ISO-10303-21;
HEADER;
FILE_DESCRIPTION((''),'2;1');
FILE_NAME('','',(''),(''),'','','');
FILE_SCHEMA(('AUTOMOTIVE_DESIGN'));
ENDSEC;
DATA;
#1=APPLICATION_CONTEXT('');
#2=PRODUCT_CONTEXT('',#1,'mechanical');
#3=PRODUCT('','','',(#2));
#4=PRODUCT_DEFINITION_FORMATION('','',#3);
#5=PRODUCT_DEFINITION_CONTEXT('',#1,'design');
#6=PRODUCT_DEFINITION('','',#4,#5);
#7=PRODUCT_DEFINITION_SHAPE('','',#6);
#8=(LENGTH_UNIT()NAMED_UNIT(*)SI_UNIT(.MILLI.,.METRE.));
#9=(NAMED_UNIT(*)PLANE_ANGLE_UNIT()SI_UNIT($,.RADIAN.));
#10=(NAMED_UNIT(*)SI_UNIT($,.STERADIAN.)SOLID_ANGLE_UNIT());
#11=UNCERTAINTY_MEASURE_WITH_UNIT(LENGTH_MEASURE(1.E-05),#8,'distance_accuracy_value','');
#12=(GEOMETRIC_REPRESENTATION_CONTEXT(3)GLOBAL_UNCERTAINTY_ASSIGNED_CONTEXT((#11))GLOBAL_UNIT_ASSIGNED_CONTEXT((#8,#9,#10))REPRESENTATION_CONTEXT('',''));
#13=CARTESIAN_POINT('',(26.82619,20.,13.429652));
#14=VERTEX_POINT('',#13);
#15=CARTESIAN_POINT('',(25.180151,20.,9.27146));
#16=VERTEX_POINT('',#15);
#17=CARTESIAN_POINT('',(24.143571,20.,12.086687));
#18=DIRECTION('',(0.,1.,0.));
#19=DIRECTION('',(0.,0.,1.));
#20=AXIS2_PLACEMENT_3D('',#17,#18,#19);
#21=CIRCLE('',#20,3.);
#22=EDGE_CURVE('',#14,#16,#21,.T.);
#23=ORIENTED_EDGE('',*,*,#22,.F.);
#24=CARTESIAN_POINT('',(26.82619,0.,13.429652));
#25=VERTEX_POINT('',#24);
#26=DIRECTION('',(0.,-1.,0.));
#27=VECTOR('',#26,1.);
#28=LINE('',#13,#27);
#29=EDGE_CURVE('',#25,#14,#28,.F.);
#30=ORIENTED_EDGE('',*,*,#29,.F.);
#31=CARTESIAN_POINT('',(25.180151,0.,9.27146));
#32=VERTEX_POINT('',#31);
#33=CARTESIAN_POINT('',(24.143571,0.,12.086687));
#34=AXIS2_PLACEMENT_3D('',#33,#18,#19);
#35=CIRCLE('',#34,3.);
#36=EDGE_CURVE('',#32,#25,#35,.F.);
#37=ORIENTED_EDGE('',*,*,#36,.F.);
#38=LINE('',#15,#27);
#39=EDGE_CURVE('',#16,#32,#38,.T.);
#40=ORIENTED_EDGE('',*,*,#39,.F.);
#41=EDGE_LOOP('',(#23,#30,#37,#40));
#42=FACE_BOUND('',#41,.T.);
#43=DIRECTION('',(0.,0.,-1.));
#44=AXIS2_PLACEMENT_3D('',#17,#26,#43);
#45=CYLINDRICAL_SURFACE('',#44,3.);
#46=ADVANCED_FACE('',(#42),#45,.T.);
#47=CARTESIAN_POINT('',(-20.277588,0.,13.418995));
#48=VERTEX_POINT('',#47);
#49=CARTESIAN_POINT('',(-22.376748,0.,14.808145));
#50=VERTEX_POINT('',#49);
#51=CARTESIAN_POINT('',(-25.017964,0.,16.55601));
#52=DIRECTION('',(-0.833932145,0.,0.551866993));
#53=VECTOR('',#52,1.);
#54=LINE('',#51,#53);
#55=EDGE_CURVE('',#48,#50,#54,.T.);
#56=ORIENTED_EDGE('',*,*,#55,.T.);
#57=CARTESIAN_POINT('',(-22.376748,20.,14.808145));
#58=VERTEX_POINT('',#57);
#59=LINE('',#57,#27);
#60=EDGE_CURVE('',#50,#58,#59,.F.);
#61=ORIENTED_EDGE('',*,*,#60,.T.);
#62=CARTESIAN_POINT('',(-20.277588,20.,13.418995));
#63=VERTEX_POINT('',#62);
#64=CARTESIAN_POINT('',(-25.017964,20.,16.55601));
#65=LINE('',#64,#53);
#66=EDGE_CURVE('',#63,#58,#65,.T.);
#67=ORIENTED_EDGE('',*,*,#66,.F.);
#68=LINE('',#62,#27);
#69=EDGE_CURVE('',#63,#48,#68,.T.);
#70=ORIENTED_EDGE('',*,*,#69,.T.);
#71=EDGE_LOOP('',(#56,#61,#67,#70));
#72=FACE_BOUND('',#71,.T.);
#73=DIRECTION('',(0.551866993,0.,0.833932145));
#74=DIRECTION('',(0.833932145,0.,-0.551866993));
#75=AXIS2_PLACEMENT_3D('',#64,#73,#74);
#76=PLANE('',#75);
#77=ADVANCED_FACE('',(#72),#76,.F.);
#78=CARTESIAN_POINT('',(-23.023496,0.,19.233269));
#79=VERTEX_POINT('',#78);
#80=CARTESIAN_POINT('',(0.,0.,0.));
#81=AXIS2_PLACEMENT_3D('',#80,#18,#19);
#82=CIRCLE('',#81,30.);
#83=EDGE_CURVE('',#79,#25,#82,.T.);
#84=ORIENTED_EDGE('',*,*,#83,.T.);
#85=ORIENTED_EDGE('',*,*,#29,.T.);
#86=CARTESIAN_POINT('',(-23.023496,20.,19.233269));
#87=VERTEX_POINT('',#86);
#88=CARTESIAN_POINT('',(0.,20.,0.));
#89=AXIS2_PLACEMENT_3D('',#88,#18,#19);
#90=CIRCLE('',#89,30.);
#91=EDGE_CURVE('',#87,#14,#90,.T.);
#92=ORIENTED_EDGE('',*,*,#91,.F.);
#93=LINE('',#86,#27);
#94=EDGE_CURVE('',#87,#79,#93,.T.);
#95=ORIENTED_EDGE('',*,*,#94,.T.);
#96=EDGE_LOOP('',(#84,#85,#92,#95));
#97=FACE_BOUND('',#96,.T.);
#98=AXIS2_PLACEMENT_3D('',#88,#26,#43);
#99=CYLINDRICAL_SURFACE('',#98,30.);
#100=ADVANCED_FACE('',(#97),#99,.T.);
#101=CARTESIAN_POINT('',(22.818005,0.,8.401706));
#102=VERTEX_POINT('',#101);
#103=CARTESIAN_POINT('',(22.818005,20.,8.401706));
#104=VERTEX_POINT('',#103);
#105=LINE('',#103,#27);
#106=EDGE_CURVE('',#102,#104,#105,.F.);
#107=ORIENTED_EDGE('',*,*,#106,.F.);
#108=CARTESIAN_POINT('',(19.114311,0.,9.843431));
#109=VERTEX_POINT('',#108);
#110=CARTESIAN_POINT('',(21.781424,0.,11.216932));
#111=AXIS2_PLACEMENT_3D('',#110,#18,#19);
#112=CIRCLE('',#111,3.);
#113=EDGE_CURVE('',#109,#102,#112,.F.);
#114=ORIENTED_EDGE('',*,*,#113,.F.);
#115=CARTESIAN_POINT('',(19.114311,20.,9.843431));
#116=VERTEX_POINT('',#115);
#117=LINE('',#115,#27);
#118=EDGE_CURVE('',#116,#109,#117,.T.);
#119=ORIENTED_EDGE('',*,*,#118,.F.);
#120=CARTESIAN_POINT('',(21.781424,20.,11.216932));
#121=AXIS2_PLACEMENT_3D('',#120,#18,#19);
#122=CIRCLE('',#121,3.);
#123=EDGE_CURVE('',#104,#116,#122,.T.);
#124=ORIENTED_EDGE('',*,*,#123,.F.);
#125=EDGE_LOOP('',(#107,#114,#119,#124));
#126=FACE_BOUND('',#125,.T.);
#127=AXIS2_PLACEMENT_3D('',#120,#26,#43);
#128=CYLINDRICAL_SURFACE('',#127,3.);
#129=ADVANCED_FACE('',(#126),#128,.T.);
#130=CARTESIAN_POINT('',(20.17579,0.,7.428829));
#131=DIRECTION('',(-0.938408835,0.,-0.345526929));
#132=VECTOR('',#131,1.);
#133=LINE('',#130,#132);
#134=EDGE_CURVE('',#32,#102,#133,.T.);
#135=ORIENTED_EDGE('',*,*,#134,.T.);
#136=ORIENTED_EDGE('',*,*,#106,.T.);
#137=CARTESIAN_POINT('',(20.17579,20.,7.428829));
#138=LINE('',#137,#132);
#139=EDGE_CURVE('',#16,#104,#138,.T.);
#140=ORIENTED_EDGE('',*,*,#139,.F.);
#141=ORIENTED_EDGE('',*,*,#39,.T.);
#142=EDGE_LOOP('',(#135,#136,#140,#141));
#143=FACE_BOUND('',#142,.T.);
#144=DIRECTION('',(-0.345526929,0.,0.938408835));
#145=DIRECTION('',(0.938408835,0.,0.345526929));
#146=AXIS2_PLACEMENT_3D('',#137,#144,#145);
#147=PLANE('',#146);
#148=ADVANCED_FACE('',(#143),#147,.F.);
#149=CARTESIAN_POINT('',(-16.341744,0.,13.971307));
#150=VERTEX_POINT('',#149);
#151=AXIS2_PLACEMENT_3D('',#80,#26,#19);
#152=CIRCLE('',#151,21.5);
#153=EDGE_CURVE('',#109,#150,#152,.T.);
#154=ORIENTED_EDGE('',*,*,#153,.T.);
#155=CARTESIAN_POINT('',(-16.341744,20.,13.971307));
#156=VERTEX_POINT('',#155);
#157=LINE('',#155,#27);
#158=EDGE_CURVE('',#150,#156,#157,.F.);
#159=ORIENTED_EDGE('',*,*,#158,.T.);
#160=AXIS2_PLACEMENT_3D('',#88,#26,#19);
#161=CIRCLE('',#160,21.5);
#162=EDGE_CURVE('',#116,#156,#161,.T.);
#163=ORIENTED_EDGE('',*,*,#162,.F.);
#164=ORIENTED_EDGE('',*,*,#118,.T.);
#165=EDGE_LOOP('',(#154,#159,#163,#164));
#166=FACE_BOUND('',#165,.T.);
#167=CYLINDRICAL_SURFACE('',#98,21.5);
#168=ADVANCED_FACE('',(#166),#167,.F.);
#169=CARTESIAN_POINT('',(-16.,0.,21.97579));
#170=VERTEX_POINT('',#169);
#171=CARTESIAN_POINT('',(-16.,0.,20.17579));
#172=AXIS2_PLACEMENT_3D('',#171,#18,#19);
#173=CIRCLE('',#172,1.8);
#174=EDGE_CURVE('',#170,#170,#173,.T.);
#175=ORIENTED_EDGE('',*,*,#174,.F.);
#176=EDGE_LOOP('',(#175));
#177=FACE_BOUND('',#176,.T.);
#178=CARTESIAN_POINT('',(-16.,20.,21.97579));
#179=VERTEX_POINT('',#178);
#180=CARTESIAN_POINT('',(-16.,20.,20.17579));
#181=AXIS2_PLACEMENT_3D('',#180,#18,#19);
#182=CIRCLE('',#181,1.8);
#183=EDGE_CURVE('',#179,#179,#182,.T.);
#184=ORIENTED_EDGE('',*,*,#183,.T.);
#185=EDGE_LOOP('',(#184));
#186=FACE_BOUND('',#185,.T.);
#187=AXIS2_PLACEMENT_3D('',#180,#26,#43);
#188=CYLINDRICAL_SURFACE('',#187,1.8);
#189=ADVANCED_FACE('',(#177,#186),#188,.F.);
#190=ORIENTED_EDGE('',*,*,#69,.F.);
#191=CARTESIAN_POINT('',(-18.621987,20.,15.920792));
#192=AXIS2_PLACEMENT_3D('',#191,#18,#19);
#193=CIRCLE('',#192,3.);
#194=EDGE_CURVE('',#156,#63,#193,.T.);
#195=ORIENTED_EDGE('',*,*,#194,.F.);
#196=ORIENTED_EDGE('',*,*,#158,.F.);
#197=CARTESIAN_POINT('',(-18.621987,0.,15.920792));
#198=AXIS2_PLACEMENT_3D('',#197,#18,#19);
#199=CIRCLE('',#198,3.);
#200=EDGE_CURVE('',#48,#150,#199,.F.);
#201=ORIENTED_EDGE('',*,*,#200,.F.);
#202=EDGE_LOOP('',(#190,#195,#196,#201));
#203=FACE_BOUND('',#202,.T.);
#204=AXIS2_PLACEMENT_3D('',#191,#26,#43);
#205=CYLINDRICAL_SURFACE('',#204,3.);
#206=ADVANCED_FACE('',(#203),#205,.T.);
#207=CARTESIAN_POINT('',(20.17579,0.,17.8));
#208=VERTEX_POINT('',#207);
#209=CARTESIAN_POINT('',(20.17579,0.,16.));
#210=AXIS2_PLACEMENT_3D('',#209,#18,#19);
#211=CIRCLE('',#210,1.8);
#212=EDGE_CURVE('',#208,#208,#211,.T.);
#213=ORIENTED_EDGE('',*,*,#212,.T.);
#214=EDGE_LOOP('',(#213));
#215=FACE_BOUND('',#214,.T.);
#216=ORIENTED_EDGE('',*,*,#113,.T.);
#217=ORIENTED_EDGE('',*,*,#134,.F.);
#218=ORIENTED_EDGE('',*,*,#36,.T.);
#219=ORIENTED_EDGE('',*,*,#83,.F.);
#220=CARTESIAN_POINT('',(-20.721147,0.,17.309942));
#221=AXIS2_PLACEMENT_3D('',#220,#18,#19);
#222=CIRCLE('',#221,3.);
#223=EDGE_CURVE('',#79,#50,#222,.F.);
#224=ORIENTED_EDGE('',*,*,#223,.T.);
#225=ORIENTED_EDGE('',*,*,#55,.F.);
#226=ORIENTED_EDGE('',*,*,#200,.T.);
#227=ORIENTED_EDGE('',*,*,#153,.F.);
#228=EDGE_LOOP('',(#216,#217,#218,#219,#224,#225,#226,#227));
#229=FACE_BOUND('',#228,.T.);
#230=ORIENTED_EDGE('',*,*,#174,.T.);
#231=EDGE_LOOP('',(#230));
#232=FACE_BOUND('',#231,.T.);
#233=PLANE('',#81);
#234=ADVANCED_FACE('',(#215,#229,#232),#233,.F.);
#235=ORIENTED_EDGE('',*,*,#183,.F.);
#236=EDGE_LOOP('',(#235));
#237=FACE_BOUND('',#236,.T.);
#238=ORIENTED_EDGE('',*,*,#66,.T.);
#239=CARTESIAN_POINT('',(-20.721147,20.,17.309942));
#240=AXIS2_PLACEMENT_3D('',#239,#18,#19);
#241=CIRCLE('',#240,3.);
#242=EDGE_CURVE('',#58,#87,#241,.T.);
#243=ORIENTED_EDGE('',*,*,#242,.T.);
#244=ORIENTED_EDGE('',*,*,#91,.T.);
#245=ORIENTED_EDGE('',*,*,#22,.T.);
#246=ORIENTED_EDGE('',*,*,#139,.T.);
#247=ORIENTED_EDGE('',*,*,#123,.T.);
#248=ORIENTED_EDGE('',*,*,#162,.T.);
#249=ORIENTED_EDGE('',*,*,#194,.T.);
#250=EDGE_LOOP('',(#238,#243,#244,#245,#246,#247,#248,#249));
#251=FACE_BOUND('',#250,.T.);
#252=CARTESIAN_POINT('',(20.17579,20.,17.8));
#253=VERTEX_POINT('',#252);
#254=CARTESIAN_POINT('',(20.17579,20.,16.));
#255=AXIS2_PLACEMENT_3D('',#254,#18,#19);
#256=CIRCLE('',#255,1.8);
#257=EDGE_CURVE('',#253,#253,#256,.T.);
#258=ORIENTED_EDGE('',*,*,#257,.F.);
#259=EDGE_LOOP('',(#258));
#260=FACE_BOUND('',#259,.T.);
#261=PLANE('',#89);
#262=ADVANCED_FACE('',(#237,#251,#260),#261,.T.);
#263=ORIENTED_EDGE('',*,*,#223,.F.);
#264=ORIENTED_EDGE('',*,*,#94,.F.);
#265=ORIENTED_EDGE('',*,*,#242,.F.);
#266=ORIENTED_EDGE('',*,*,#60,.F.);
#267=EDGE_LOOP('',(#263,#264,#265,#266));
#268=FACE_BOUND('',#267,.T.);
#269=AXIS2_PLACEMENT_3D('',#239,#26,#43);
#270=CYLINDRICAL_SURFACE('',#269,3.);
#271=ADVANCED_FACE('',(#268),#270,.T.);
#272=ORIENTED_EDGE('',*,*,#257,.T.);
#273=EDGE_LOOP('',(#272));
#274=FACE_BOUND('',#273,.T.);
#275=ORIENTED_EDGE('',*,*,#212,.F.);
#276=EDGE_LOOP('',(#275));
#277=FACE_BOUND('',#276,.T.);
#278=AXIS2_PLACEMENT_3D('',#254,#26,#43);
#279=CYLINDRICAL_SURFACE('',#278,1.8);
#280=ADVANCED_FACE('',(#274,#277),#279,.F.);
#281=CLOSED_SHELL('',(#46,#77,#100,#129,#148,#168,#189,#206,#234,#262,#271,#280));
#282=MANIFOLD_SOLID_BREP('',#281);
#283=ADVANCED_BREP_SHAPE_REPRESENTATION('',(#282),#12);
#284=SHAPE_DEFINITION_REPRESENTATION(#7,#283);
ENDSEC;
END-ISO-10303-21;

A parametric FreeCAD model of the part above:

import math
import FreeCAD as App
import Part
import Sketcher
from FreeCAD import Vector


def edges_at(feature, points):
    """Names of the edges that pass closest to the given points."""
    edges = feature.Shape.Edges
    near = lambda p: min(range(len(edges)), key=lambda i: edges[i].distToShape(Part.Vertex(*p))[0])
    return sorted({f"Edge{near(p) + 1}" for p in points})

doc = App.newDocument("Part")
body = doc.addObject("PartDesign::Body", "Body")

# Sketch on XZ plane
sketch1 = body.newObject("Sketcher::SketchObject", "Sketch")
sketch1.AttachmentSupport = (doc.getObject("XZ_Plane"), [""])
sketch1.MapMode = "FlatFace"
sketch1.addGeometry([
    Part.LineSegment(Vector(-17.9, 11.9, 0), Vector(-25, 16.6, 0)),  # 0
    Part.ArcOfCircle(Part.Circle(Vector(0, 0, 0), Vector(0, 0, 1), 30), math.radians(20), math.radians(147)),  # 1
    Part.LineSegment(Vector(28.2, 10.4, 0), Vector(20.2, 7.4, 0)),  # 2
    Part.ArcOfCircle(Part.Circle(Vector(0, 0, 0), Vector(0, 0, 1), 21.5), math.radians(20), math.radians(147)),  # 3
    Part.Circle(Vector(-16, 20.2, 0), Vector(0, 0, 1), 1.8),  # 4
    Part.Circle(Vector(20.2, 16, 0), Vector(0, 0, 1), 1.8),  # 5
], False)
sketch1.addConstraint([
    Sketcher.Constraint("Coincident", 0, 2, 1, 2),
    Sketcher.Constraint("Coincident", 1, 1, 2, 1),
    Sketcher.Constraint("Coincident", 2, 2, 3, 1),
    Sketcher.Constraint("Coincident", 3, 2, 0, 1),
    Sketcher.Constraint("Coincident", 1, 3, -1, 1),
    Sketcher.Constraint("Coincident", 3, 3, -1, 1),
    Sketcher.Constraint("Equal", 4, 5),
    Sketcher.Constraint("Vertical", 5, 3, 2, 2),
    Sketcher.Constraint("Radius", 1, 30.0),
    Sketcher.Constraint("Diameter", 4, 3.6),
    Sketcher.Constraint("Radius", 3, 21.5),
    Sketcher.Constraint("DistanceX", 4, 3, -1, 1, 16.0),
    Sketcher.Constraint("DistanceY", -1, 1, 5, 3, 16.0),
    Sketcher.Constraint("DistanceY", 1, 1, 0, 2, 6.190202),
    Sketcher.Constraint("DistanceY", -1, 1, 4, 3, 20.17579),
    Sketcher.Constraint("DistanceX", -1, 1, 5, 3, 20.17579),
    Sketcher.Constraint("DistanceY", -1, 1, 0, 2, 16.55601),
    Sketcher.Constraint("DistanceX", 3, 2, -1, 1, 17.929541),
])
pad1 = body.newObject("PartDesign::Pad", "Pad")
pad1.Profile = sketch1
pad1.Length = 20
pad1.Reversed = True
doc.recompute()

fillet = body.newObject("PartDesign::Fillet", "Fillet")
fillet.Base = (pad1, edges_at(pad1, [
    (-25.018, 10, 16.556),
    (-17.93, 10, 11.865),
    (20.176, 10, 7.429),
    (28.152, 10, 10.366),
]))
fillet.Radius = 3

doc.recompute()
